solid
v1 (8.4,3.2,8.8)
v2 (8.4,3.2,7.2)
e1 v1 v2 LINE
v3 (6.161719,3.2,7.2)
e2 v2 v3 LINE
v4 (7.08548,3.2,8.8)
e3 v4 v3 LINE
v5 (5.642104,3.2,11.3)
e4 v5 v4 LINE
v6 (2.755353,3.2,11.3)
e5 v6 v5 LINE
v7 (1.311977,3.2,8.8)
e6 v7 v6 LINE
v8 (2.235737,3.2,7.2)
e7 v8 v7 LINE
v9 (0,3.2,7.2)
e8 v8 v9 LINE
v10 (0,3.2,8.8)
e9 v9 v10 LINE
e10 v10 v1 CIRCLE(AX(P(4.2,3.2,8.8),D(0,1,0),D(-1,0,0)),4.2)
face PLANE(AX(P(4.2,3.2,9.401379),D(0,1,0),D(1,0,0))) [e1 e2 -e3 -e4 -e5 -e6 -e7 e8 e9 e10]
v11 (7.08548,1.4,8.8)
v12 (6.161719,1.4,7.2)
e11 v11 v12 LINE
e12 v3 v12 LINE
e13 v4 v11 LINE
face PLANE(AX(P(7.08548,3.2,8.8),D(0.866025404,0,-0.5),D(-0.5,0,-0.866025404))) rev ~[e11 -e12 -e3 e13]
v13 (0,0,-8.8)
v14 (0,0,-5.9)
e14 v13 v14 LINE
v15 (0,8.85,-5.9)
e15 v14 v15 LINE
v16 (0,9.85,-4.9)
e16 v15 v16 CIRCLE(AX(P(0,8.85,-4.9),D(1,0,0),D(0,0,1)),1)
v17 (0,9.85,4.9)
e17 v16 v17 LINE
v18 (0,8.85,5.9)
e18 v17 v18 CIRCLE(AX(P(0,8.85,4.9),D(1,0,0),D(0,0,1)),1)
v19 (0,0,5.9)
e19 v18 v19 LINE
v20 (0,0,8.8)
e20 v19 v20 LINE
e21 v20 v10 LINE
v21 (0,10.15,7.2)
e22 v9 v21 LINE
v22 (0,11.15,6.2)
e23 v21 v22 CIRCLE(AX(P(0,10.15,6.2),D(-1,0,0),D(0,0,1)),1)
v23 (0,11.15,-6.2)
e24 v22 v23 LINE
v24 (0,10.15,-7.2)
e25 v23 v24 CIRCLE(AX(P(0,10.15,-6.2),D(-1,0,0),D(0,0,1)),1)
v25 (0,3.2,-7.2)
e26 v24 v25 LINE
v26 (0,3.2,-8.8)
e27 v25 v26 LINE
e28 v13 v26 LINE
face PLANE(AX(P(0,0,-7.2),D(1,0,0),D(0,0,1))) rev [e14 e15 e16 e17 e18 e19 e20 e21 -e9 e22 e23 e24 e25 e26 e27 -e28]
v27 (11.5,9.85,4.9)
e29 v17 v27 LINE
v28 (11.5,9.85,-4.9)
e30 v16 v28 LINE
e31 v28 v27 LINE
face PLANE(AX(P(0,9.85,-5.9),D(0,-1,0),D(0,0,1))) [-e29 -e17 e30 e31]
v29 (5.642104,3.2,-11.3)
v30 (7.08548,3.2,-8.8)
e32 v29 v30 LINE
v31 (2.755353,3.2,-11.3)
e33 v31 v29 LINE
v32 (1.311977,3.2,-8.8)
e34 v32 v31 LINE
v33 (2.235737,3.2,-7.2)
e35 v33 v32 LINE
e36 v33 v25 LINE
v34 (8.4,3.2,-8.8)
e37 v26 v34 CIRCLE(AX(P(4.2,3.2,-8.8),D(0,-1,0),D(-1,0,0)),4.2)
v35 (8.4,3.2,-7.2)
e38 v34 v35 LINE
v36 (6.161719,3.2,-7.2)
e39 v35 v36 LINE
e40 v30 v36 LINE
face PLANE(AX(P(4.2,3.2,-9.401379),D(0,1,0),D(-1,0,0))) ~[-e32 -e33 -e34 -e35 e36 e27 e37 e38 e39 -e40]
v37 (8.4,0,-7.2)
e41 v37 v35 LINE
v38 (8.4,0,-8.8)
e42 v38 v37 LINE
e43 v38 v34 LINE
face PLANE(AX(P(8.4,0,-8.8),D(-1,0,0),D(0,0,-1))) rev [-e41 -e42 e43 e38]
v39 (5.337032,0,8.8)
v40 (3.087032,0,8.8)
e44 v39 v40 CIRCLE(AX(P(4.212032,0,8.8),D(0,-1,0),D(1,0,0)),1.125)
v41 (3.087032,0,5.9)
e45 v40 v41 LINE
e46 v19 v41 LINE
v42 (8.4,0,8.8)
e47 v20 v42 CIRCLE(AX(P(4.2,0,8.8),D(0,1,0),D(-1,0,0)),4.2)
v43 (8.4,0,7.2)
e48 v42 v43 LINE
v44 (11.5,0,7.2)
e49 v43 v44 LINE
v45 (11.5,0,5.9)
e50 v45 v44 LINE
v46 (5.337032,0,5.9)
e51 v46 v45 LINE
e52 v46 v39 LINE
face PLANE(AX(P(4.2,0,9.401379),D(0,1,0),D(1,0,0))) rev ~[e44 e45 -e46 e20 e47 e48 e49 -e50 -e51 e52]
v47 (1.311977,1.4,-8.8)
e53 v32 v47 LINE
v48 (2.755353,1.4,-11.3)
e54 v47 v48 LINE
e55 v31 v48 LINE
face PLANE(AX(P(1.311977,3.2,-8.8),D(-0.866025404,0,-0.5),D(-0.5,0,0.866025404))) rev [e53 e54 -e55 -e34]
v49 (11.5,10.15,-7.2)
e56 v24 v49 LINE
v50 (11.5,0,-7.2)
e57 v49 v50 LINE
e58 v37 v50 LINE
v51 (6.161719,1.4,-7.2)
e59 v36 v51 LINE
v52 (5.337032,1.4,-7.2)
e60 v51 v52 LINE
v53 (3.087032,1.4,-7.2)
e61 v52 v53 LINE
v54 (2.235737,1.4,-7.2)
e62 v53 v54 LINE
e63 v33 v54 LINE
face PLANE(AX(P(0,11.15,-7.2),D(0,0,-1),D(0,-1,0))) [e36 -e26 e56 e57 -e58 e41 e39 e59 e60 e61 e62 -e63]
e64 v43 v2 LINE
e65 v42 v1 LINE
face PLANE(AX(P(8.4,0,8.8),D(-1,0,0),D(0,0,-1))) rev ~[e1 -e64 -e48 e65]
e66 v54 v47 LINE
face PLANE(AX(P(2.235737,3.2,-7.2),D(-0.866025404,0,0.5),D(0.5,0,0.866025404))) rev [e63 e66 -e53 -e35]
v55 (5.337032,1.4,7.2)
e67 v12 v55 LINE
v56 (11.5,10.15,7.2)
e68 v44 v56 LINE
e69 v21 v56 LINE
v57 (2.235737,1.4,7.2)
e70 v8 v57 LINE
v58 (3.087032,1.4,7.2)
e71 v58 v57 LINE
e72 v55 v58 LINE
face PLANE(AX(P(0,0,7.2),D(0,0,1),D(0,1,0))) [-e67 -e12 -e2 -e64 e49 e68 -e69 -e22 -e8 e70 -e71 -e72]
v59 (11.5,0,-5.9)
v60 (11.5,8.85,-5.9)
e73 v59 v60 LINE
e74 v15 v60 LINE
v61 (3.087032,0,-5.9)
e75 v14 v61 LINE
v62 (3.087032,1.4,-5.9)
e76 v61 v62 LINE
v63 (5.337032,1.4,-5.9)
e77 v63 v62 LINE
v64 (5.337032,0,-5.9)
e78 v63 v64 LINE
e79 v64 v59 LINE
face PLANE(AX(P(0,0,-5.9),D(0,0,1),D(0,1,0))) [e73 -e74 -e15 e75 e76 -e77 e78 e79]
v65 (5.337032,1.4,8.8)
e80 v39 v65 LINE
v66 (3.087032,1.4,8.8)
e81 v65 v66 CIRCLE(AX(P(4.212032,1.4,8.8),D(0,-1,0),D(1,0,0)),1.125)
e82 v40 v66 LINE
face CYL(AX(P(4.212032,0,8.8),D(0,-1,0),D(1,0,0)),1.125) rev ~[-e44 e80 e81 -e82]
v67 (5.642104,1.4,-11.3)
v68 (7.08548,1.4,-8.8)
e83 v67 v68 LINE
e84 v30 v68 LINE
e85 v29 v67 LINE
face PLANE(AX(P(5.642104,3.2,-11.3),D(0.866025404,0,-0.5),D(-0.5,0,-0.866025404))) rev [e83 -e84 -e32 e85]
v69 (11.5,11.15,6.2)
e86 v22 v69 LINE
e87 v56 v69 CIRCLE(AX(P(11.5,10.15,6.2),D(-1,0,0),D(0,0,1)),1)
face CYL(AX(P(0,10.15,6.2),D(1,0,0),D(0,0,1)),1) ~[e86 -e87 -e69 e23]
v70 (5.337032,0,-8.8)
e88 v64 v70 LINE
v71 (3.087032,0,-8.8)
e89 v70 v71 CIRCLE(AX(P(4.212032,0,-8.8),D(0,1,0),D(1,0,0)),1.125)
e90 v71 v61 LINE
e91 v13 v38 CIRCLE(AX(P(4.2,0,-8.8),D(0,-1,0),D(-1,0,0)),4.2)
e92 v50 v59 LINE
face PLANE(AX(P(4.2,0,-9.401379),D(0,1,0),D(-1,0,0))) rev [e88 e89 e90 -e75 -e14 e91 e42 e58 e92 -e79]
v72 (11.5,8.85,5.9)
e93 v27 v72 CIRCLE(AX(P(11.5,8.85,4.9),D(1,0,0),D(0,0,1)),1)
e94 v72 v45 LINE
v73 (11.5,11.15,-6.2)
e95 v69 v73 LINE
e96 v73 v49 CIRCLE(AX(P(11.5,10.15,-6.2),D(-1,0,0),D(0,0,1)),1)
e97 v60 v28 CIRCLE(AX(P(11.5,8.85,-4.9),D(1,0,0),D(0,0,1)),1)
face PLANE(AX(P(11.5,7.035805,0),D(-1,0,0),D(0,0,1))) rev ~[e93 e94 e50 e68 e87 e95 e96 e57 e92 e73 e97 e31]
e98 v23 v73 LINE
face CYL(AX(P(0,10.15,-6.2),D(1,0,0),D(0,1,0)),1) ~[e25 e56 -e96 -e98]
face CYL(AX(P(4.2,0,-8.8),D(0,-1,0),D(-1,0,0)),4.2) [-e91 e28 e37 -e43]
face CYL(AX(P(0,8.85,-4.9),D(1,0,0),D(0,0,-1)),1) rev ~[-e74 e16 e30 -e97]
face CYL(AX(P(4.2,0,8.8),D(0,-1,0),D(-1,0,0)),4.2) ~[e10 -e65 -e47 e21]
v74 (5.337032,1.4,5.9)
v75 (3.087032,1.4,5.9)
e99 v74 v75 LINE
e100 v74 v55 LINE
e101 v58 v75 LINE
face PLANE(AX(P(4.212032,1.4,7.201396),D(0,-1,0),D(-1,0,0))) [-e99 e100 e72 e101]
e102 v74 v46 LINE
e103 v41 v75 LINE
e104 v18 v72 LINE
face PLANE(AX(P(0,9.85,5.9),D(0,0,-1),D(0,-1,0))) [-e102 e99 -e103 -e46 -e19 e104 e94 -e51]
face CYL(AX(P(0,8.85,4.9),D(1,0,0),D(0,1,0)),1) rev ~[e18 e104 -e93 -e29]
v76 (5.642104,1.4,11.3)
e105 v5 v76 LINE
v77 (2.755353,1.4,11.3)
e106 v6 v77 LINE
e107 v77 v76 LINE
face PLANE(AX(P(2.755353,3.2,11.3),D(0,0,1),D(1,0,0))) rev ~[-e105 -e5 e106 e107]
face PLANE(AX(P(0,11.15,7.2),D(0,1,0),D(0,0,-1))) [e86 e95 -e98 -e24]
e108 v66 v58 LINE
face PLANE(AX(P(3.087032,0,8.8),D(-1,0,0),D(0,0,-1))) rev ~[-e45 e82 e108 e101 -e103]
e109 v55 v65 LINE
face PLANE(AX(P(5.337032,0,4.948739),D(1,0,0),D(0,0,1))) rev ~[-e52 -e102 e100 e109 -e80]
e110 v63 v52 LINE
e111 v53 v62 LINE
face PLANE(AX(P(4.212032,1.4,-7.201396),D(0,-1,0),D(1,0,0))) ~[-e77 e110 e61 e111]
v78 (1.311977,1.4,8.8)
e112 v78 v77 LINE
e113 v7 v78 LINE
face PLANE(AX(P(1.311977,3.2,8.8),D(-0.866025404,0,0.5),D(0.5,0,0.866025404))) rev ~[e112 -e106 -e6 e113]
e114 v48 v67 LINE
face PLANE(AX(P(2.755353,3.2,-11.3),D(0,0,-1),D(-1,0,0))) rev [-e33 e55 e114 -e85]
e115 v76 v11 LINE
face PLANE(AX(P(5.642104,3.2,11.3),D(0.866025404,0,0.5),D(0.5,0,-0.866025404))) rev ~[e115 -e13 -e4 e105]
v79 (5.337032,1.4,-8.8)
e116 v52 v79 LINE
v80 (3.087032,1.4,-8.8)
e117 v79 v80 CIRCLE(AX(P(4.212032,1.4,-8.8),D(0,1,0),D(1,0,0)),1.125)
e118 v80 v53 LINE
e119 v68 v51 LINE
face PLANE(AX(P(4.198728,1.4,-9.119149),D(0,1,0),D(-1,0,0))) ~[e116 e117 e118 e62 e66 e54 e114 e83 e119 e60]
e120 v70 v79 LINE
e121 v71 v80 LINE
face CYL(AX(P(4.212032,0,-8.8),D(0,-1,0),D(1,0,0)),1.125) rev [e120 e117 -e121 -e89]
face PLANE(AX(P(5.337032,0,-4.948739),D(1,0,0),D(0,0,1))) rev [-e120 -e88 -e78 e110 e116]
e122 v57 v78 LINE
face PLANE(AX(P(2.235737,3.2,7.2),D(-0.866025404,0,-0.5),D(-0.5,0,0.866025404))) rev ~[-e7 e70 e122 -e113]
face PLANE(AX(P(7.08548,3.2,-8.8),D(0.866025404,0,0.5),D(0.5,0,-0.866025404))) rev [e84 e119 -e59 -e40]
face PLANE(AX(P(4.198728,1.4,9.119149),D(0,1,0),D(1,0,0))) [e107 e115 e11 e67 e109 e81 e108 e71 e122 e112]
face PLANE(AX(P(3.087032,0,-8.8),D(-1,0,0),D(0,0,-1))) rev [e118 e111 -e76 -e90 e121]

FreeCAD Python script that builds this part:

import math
import FreeCAD as App
import Part
import Sketcher

V = App.Vector
Q = App.Units.Quantity


def edges_at(feature, points):
    """Names of the edges that pass closest to the given points."""
    edges = feature.Shape.Edges
    near = lambda p: min(range(len(edges)), key=lambda i: edges[i].distToShape(Part.Vertex(*p))[0])
    return sorted({f"Edge{near(p) + 1}" for p in points})


def add_polygon(sketch, points):
    """Adds a closed chain of lines whose ends are joined by coincident constraints."""
    first, n = sketch.GeometryCount, len(points)
    for a, b in zip(points, points[1:] + points[:1]):
        sketch.addGeometry(Part.LineSegment(App.Vector(*a, 0), App.Vector(*b, 0)), False)
    for i in range(n):
        sketch.addConstraint(Sketcher.Constraint("Coincident", first + i, 2, first + (i + 1) % n, 1))

doc = App.newDocument("Part")
body = doc.addObject("PartDesign::Body", "Body")

# Sketch on YZ plane
sketch1 = doc.addObject("Sketcher::SketchObject", "Sketch")
body.addObject(sketch1)
sketch1.AttachmentSupport = (doc.YZ_Plane, [""])
sketch1.MapMode = "FlatFace"
add_polygon(sketch1, [(9.8, -5.9), (0, -5.9), (0, -7.2), (11.2, -7.2), (11.2, 7.2), (0, 7.2), (0, 5.9), (9.8, 5.9)])  # lines 0-7
sketch1.addConstraint(Sketcher.Constraint("Horizontal", 0))
sketch1.addConstraint(Sketcher.Constraint("Vertical", 1))
sketch1.addConstraint(Sketcher.Constraint("Horizontal", 2))
sketch1.addConstraint(Sketcher.Constraint("Vertical", 3))
sketch1.addConstraint(Sketcher.Constraint("Horizontal", 4))
sketch1.addConstraint(Sketcher.Constraint("Vertical", 5))
sketch1.addConstraint(Sketcher.Constraint("Horizontal", 6))
sketch1.addConstraint(Sketcher.Constraint("Vertical", 7))
sketch1.addConstraint(Sketcher.Constraint("Symmetric", 1, 2, 4, 2, -1, 1))
sketch1.addConstraint(Sketcher.Constraint("Symmetric", 0, 2, 5, 2, -1))
sketch1.addConstraint(Sketcher.Constraint("DistanceY", 1, 2, 1, 1, 1.3))
sketch1.addConstraint(Sketcher.Constraint("DistanceY", 3, 1, 3, 2, 14.4))
sketch1.addConstraint(Sketcher.Constraint("DistanceX", 0, 2, 0, 1, 9.85))
sketch1.addConstraint(Sketcher.Constraint("DistanceX", 2, 1, 2, 2, 11.15))
pad1 = doc.addObject("PartDesign::Pad", "Pad")
body.addObject(pad1)
pad1.Profile = sketch1
pad1.Length = 11.5
doc.recompute()

fillet = doc.addObject("PartDesign::Fillet", "Fillet")
body.addObject(fillet)
fillet.Base = (pad1, edges_at(pad1, [
    (5.75, 11.15, 7.2),
    (5.75, 11.15, -7.2),
    (5.75, 9.85, -5.9),
    (5.75, 9.85, 5.9),
]))
fillet.Radius = 1

# Sketch on XZ plane
sketch2 = doc.addObject("Sketcher::SketchObject", "Sketch001")
body.addObject(sketch2)
sketch2.AttachmentSupport = (doc.XZ_Plane, [""])
sketch2.MapMode = "FlatFace"
sketch2.addGeometry(Part.LineSegment(V(0, 7.2, 0), V(0, 8.8, 0)), False)
sketch2.addGeometry(Part.ArcOfCircle(Part.Circle(V(4.2, 8.8, 0), V(0, 0, 1), 4.2), math.radians(0), math.radians(180)), False)
sketch2.addGeometry(Part.LineSegment(V(8.4, 8.8, 0), V(8.4, 7.2, 0)), False)
sketch2.addGeometry(Part.LineSegment(V(8.4, 7.2, 0), V(0, 7.2, 0)), False)
sketch2.addConstraint(Sketcher.Constraint("Tangent", 0, 2, 1, 2))
sketch2.addConstraint(Sketcher.Constraint("Tangent", 1, 1, 2, 1))
sketch2.addConstraint(Sketcher.Constraint("Coincident", 2, 2, 3, 1))
sketch2.addConstraint(Sketcher.Constraint("Coincident", 3, 2, 0, 1))
sketch2.addConstraint(Sketcher.Constraint("Vertical", 0))
sketch2.addConstraint(Sketcher.Constraint("Vertical", 2))
sketch2.addConstraint(Sketcher.Constraint("Horizontal", 3))
sketch2.addConstraint(Sketcher.Constraint("PointOnObject", 0, 2, -2))
sketch2.addConstraint(Sketcher.Constraint("Radius", 1, 4.2))
sketch2.addConstraint(Sketcher.Constraint("DistanceY", 0, 1, 0, 2, 1.6))
sketch2.addConstraint(Sketcher.Constraint("DistanceY", -1, 1, 1, 3, 8.8))
pad2 = doc.addObject("PartDesign::Pad", "Pad001")
body.addObject(pad2)
pad2.Profile = sketch2
pad2.Length = 3.2
pad2.Reversed = True

# Sketch on XZ plane
sketch3 = doc.addObject("Sketcher::SketchObject", "Sketch002")
body.addObject(sketch3)
sketch3.AttachmentSupport = (doc.XZ_Plane, [""])
sketch3.MapMode = "FlatFace"
sketch3.AttachmentOffset = App.Placement(V(0, 0, -3.2), App.Rotation())
add_polygon(sketch3, [(7.1, 8.8), (6.2, 7.2), (2.2, 7.2), (1.3, 8.8), (2.8, 11.3), (5.6, 11.3)])  # lines 0-5
sketch3.addConstraint(Sketcher.Constraint("Horizontal", 1))
sketch3.addConstraint(Sketcher.Constraint("Horizontal", 4))
sketch3.addConstraint(Sketcher.Constraint("Parallel", 0, 3))
sketch3.addConstraint(Sketcher.Constraint("Parallel", 2, 5))
sketch3.addConstraint(Sketcher.Constraint("Horizontal", 2, 2, 5, 2))
sketch3.addConstraint(Sketcher.Constraint("Equal", 0, 2))
sketch3.addConstraint(Sketcher.Constraint("Angle", 0, Q("-120 deg")))
sketch3.addConstraint(Sketcher.Constraint("DistanceY", -1, 1, 0, 2, 7.2))
sketch3.addConstraint(Sketcher.Constraint("DistanceY", -1, 1, 2, 2, 8.8))
sketch3.addConstraint(Sketcher.Constraint("DistanceY", -1, 1, 3, 2, 11.3))
sketch3.addConstraint(Sketcher.Constraint("DistanceX", 1, 2, 1, 1, 3.925982))
sketch3.addConstraint(Sketcher.Constraint("DistanceX", -1, 1, 0, 2, 6.161719))
pocket1 = doc.addObject("PartDesign::Pocket", "Pocket")
body.addObject(pocket1)
pocket1.Profile = sketch3
pocket1.Length = 1.8
pocket1.Reversed = True

# Sketch on XZ plane
sketch4 = doc.addObject("Sketcher::SketchObject", "Sketch003")
body.addObject(sketch4)
sketch4.AttachmentSupport = (doc.XZ_Plane, [""])
sketch4.MapMode = "FlatFace"
sketch4.addGeometry(Part.LineSegment(V(3.1, 4.9, 0), V(3.1, 8.8, 0)), False)
sketch4.addGeometry(Part.ArcOfCircle(Part.Circle(V(4.2, 8.8, 0), V(0, 0, 1), 1.1), math.radians(0), math.radians(180)), False)
sketch4.addGeometry(Part.LineSegment(V(5.3, 8.8, 0), V(5.3, 4.9, 0)), False)
sketch4.addGeometry(Part.LineSegment(V(5.3, 4.9, 0), V(3.1, 4.9, 0)), False)
sketch4.addConstraint(Sketcher.Constraint("Tangent", 0, 2, 1, 2))
sketch4.addConstraint(Sketcher.Constraint("Tangent", 1, 1, 2, 1))
sketch4.addConstraint(Sketcher.Constraint("Coincident", 2, 2, 3, 1))
sketch4.addConstraint(Sketcher.Constraint("Coincident", 3, 2, 0, 1))
sketch4.addConstraint(Sketcher.Constraint("Vertical", 0))
sketch4.addConstraint(Sketcher.Constraint("Vertical", 2))
sketch4.addConstraint(Sketcher.Constraint("Horizontal", 3))
sketch4.addConstraint(Sketcher.Constraint("Radius", 1, 1.125))
sketch4.addConstraint(Sketcher.Constraint("DistanceY", -1, 1, 1, 3, 8.8))
sketch4.addConstraint(Sketcher.Constraint("DistanceY", 0, 1, 0, 2, 3.851261))
sketch4.addConstraint(Sketcher.Constraint("DistanceX", -1, 1, 1, 3, 4.212032))
pocket2 = doc.addObject("PartDesign::Pocket", "Pocket001")
body.addObject(pocket2)
pocket2.Profile = sketch4
pocket2.Length = 1.4
doc.recompute()

mirrored = doc.addObject("PartDesign::Mirrored", "Mirrored")
body.addObject(mirrored)
mirrored.Originals = [pad2, pocket1, pocket2]
mirrored.MirrorPlane = (doc.XY_Plane, [""])
body.Tip = mirrored

doc.recompute()
